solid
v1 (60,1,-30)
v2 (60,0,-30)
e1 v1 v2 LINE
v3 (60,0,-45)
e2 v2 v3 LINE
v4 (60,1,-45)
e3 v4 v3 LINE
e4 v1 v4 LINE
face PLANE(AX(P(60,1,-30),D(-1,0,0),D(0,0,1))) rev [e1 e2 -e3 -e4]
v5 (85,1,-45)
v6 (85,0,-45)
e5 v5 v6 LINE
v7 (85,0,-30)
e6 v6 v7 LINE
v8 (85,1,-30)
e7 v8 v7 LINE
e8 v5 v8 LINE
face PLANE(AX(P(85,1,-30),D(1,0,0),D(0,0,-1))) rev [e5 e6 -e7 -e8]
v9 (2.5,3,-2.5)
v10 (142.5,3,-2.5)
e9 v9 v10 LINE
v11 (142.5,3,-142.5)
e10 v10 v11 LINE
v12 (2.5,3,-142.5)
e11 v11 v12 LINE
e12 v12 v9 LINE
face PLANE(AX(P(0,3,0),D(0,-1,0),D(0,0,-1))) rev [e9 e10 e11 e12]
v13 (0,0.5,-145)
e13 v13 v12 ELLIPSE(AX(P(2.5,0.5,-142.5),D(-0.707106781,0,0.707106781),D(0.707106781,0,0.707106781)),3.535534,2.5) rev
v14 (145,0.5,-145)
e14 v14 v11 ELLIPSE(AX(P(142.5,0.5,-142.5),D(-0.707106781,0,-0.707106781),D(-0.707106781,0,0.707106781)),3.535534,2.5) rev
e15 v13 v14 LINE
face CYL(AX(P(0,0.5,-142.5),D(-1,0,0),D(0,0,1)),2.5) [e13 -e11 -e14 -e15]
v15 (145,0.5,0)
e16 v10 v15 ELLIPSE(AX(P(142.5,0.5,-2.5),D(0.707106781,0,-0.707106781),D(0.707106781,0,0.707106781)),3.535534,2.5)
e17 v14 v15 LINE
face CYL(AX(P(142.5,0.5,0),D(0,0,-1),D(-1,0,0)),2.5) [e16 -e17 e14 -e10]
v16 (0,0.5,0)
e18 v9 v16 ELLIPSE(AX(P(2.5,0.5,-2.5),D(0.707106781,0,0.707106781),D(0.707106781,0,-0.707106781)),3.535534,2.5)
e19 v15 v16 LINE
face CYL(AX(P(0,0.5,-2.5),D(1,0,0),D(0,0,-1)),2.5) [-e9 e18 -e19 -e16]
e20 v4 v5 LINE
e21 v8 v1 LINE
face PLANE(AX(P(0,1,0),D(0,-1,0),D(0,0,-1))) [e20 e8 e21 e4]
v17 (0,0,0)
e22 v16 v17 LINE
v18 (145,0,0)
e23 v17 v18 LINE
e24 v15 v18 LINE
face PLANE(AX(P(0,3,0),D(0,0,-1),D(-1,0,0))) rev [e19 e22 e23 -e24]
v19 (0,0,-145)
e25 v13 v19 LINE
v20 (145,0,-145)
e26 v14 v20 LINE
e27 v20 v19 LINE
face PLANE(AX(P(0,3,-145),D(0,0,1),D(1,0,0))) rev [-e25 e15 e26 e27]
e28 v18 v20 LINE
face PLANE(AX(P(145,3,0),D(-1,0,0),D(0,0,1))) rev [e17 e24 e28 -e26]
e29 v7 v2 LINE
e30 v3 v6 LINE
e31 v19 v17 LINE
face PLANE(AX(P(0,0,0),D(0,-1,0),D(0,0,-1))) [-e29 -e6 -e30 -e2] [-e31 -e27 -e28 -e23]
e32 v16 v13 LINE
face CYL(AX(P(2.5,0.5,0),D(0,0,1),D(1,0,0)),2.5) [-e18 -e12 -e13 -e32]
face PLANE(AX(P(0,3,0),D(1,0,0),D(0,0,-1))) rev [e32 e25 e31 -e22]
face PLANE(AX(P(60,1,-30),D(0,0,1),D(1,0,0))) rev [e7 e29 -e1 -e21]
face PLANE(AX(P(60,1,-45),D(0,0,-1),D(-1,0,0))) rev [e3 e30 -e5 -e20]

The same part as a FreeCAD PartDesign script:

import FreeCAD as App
import Part
import Sketcher

V = App.Vector


def edges_at(feature, points):
    """Names of the edges that pass closest to the given points."""
    edges = feature.Shape.Edges
    near = lambda p: min(range(len(edges)), key=lambda i: edges[i].distToShape(Part.Vertex(*p))[0])
    return sorted({f"Edge{near(p) + 1}" for p in points})

doc = App.newDocument("Part")
body = doc.addObject("PartDesign::Body", "Body")

sketch1 = body.newObject("Sketcher::SketchObject", "Sketch")
sketch1.AttachmentSupport = (doc.getObject("XZ_Plane"), [""])
sketch1.MapMode = "FlatFace"
sketch1.addGeometry(Part.LineSegment(V(0, -145, 0), V(0, 0, 0)), False)
sketch1.addGeometry(Part.LineSegment(V(0, 0, 0), V(145, 0, 0)), False)
sketch1.addGeometry(Part.LineSegment(V(145, 0, 0), V(145, -145, 0)), False)
sketch1.addGeometry(Part.LineSegment(V(145, -145, 0), V(0, -145, 0)), False)
sketch1.addConstraint(Sketcher.Constraint("Coincident", 0, 2, 1, 1))
sketch1.addConstraint(Sketcher.Constraint("Coincident", 1, 2, 2, 1))
sketch1.addConstraint(Sketcher.Constraint("Coincident", 2, 2, 3, 1))
sketch1.addConstraint(Sketcher.Constraint("Coincident", 3, 2, 0, 1))
sketch1.addConstraint(Sketcher.Constraint("Vertical", 0))
sketch1.addConstraint(Sketcher.Constraint("Horizontal", 1))
sketch1.addConstraint(Sketcher.Constraint("Vertical", 2))
sketch1.addConstraint(Sketcher.Constraint("Horizontal", 3))
sketch1.addConstraint(Sketcher.Constraint("Coincident", 0, 2, -1, 1))
sketch1.addConstraint(Sketcher.Constraint("Equal", 3, 0))
sketch1.addConstraint(Sketcher.Constraint("DistanceX", 1, 1, 1, 2, 145.0))
pad1 = body.newObject("PartDesign::Pad", "Pad")
pad1.Profile = sketch1
pad1.Length = 3
pad1.Reversed = True
doc.recompute()

fillet = body.newObject("PartDesign::Fillet", "Fillet")
fillet.Base = (pad1, edges_at(pad1, [
    (145, 3, -72.5),
    (72.5, 3, -145),
    (0, 3, -72.5),
    (72.5, 3, 0),
]))
fillet.Radius = 2.5

sketch2 = body.newObject("Sketcher::SketchObject", "Sketch001")
sketch2.AttachmentSupport = (doc.getObject("XZ_Plane"), [""])
sketch2.MapMode = "FlatFace"
sketch2.addGeometry(Part.LineSegment(V(60, -30, 0), V(60, -45, 0)), False)
sketch2.addGeometry(Part.LineSegment(V(60, -45, 0), V(85, -45, 0)), False)
sketch2.addGeometry(Part.LineSegment(V(85, -45, 0), V(85, -30, 0)), False)
sketch2.addGeometry(Part.LineSegment(V(85, -30, 0), V(60, -30, 0)), False)
sketch2.addConstraint(Sketcher.Constraint("Coincident", 0, 2, 1, 1))
sketch2.addConstraint(Sketcher.Constraint("Coincident", 1, 2, 2, 1))
sketch2.addConstraint(Sketcher.Constraint("Coincident", 2, 2, 3, 1))
sketch2.addConstraint(Sketcher.Constraint("Coincident", 3, 2, 0, 1))
sketch2.addConstraint(Sketcher.Constraint("Vertical", 0))
sketch2.addConstraint(Sketcher.Constraint("Horizontal", 1))
sketch2.addConstraint(Sketcher.Constraint("Vertical", 2))
sketch2.addConstraint(Sketcher.Constraint("Horizontal", 3))
sketch2.addConstraint(Sketcher.Constraint("DistanceX", 1, 1, 1, 2, 25.0))
sketch2.addConstraint(Sketcher.Constraint("DistanceY", 0, 2, 0, 1, 15.0))
sketch2.addConstraint(Sketcher.Constraint("DistanceX", -1, 1, 0, 2, 60.0))
sketch2.addConstraint(Sketcher.Constraint("DistanceY", 0, 2, -1, 1, 45.0))
pocket1 = body.newObject("PartDesign::Pocket", "Pocket")
pocket1.Profile = sketch2
pocket1.Length = 1

doc.recompute()
